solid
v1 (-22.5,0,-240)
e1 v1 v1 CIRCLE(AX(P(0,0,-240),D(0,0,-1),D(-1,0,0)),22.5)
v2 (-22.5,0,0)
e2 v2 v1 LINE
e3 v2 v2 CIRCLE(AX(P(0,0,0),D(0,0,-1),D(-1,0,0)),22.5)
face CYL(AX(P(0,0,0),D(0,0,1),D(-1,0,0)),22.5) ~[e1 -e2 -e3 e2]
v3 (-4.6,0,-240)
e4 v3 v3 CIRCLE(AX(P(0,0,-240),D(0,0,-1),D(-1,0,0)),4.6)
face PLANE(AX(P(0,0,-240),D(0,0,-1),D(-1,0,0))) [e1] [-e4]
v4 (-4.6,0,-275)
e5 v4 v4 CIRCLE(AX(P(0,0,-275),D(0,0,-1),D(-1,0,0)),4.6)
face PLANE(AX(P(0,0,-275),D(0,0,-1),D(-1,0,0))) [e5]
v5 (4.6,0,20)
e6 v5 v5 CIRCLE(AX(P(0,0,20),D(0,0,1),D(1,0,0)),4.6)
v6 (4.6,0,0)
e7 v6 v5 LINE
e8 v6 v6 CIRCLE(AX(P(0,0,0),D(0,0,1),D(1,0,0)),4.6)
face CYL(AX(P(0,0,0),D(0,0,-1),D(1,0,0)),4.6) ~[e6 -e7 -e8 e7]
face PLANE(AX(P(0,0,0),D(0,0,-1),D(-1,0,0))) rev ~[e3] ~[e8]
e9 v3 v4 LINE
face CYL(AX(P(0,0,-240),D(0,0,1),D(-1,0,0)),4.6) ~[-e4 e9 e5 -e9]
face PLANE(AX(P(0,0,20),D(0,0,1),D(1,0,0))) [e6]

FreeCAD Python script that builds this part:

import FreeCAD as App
import Part
import Sketcher
from FreeCAD import Vector
Q = App.Units.Quantity

doc = App.newDocument("Part")
body = doc.addObject("PartDesign::Body", "Body")

sketch1 = body.newObject("Sketcher::SketchObject", "Sketch")
sketch1.AttachmentSupport = (doc.getObject("XY_Plane"), [""])
sketch1.MapMode = "FlatFace"
sketch1.addGeometry(Part.Circle(Vector(0, 0, 0), Vector(0, 0, 1), 4.6), False)
sketch1.addConstraint(Sketcher.Constraint("Coincident", 0, 3, -1, 1))
sketch1.addConstraint(Sketcher.Constraint("Diameter", 0, Q("9.2 mm")))
pad1 = body.newObject("PartDesign::Pad", "Pad")
pad1.Profile = sketch1
pad1.Length = 20

sketch2 = body.newObject("Sketcher::SketchObject", "Sketch001")
sketch2.AttachmentSupport = (doc.getObject("XY_Plane"), [""])
sketch2.MapMode = "FlatFace"
sketch2.addGeometry(Part.Circle(Vector(0, 0, 0), Vector(0, 0, 1), 22.5), False)
sketch2.addConstraint(Sketcher.Constraint("Coincident", 0, 3, -1, 1))
sketch2.addConstraint(Sketcher.Constraint("Diameter", 0, Q("45 mm")))
pad2 = body.newObject("PartDesign::Pad", "Pad001")
pad2.Profile = sketch2
pad2.Length = 240
pad2.Reversed = True

sketch3 = body.newObject("Sketcher::SketchObject", "Sketch002")
sketch3.AttachmentSupport = (doc.getObject("XY_Plane"), [""])
sketch3.MapMode = "FlatFace"
sketch3.AttachmentOffset = App.Placement(Vector(0, 0, -240), App.Rotation())
sketch3.addGeometry(Part.Circle(Vector(0, 0, 0), Vector(0, 0, 1), 4.6), False)
sketch3.addConstraint(Sketcher.Constraint("Coincident", 0, 3, -1, 1))
sketch3.addConstraint(Sketcher.Constraint("Diameter", 0, Q("9.2 mm")))
pad3 = body.newObject("PartDesign::Pad", "Pad002")
pad3.Profile = sketch3
pad3.Length = 35
pad3.Reversed = True

doc.recompute()
